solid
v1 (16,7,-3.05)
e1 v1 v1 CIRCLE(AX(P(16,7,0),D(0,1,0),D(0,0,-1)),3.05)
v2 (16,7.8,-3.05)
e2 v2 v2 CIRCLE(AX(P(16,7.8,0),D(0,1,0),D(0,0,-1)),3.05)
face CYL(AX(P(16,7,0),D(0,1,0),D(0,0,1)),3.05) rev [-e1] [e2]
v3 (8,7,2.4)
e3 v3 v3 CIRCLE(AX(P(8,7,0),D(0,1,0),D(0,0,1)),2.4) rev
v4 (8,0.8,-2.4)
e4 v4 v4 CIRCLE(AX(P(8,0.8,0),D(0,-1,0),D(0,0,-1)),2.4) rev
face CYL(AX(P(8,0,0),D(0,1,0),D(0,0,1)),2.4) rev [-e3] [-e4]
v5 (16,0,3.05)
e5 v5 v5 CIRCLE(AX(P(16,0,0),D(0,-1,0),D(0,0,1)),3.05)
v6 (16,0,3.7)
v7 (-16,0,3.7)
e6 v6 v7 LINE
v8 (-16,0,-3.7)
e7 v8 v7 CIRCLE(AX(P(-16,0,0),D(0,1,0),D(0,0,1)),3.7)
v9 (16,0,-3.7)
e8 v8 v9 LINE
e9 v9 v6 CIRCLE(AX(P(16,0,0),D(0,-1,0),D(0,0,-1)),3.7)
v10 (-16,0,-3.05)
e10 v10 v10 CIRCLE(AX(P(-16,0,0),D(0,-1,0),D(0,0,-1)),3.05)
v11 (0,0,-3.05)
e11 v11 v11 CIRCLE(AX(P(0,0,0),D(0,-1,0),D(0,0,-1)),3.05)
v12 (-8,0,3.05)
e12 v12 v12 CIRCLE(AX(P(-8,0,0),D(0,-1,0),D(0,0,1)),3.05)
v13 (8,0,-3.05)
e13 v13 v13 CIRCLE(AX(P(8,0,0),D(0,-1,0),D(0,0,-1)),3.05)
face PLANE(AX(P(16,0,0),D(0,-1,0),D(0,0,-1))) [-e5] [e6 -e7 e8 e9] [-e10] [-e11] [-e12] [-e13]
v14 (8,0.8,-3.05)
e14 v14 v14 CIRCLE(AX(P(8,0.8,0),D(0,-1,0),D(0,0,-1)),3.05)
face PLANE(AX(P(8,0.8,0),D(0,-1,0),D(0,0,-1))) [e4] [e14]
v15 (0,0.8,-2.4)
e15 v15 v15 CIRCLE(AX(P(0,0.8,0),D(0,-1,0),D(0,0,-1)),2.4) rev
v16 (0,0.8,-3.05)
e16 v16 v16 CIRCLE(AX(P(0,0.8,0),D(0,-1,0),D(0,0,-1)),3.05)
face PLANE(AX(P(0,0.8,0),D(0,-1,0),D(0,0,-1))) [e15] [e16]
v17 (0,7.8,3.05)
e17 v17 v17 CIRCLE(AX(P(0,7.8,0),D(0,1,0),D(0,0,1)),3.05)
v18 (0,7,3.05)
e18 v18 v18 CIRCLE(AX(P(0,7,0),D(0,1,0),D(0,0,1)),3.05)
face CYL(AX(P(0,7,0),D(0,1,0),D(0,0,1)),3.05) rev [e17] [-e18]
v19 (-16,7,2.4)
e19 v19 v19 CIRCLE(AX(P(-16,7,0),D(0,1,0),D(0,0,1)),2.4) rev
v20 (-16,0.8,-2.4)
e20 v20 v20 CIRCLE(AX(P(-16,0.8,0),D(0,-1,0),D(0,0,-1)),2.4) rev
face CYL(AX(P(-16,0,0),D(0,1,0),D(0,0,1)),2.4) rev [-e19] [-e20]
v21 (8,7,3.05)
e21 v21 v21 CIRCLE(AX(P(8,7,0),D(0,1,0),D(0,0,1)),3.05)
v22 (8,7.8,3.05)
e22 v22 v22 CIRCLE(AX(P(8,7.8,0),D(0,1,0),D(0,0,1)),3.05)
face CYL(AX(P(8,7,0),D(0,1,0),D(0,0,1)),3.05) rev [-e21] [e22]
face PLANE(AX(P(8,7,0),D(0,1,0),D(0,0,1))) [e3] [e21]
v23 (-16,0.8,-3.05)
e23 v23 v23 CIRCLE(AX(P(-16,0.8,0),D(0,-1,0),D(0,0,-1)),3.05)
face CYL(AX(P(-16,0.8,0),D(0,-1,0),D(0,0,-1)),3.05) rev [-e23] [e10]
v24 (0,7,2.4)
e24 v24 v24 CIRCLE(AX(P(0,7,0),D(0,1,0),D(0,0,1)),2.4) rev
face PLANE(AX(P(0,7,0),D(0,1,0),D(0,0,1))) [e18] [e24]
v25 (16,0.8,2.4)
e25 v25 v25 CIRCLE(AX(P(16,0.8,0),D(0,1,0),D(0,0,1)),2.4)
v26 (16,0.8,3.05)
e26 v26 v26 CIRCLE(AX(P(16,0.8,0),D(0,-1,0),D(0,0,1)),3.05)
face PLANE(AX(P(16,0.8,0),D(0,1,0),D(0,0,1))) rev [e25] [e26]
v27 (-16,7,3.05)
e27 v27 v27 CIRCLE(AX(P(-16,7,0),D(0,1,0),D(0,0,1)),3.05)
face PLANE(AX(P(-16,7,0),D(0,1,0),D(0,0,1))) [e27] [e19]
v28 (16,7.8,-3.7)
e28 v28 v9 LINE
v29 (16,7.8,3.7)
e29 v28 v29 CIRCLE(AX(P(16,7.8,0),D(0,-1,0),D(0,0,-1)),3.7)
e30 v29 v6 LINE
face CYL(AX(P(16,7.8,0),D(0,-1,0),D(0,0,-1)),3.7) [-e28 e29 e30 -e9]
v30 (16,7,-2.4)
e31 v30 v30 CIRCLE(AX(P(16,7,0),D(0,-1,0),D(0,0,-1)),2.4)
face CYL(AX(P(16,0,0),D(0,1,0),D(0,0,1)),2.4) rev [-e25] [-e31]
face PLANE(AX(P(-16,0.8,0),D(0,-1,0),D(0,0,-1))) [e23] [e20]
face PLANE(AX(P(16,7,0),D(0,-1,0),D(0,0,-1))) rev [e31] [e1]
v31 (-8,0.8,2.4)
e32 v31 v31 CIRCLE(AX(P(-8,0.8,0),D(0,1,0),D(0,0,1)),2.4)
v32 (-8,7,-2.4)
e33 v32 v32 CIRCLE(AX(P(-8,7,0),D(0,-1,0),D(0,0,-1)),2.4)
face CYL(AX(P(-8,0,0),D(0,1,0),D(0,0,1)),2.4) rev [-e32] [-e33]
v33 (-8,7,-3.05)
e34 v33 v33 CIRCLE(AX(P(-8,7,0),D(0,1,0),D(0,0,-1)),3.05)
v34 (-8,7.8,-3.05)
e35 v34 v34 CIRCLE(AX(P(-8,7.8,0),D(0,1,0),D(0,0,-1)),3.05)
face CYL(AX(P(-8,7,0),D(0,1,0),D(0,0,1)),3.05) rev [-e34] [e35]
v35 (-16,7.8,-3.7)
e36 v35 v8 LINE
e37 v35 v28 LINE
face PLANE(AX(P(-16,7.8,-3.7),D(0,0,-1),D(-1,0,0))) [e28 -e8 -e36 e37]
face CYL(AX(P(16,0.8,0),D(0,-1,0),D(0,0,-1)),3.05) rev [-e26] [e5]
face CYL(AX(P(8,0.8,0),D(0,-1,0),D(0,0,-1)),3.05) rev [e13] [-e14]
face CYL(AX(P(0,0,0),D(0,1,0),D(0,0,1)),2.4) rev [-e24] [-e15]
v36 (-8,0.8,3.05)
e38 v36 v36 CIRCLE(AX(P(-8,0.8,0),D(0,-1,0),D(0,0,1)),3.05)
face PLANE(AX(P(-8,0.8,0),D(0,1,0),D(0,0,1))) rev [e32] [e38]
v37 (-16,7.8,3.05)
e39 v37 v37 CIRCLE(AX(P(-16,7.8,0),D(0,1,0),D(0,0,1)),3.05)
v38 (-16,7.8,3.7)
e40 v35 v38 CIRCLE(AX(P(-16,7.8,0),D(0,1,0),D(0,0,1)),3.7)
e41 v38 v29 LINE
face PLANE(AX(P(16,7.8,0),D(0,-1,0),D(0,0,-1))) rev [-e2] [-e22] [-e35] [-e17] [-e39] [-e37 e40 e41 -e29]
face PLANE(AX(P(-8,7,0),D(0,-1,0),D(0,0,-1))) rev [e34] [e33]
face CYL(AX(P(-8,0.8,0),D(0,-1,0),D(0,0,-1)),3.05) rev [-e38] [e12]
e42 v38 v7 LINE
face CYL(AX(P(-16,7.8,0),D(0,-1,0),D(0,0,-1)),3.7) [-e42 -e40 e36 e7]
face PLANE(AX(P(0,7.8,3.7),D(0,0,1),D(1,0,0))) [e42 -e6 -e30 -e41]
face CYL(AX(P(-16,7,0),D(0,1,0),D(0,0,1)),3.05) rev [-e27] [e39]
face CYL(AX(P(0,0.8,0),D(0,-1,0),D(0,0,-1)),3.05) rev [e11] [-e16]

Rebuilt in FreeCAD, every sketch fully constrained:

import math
import FreeCAD as App
import Part
import Sketcher
Q = App.Units.Quantity

doc = App.newDocument("Part")
body = doc.addObject("PartDesign::Body", "Body")

# Sketch on XZ plane
sketch1 = body.newObject("Sketcher::SketchObject", "Sketch")
sketch1.AttachmentSupport = (doc.getObject("XZ_Plane"), [""])
sketch1.MapMode = "FlatFace"
sketch1.addGeometry(Part.LineSegment(App.Vector(16, -3.7, 0), App.Vector(-16, -3.7, 0)), False)
sketch1.addGeometry(Part.ArcOfCircle(Part.Circle(App.Vector(-16, 0, 0), App.Vector(0, 0, 1), 3.7), math.radians(90), math.radians(270)), False)
sketch1.addGeometry(Part.LineSegment(App.Vector(-16, 3.7, 0), App.Vector(16, 3.7, 0)), False)
sketch1.addGeometry(Part.ArcOfCircle(Part.Circle(App.Vector(16, 0, 0), App.Vector(0, 0, 1), 3.7), math.radians(-90), math.radians(90)), False)
sketch1.addConstraint(Sketcher.Constraint("Tangent", 0, 2, 1, 2))
sketch1.addConstraint(Sketcher.Constraint("Tangent", 1, 1, 2, 1))
sketch1.addConstraint(Sketcher.Constraint("Tangent", 2, 2, 3, 2))
sketch1.addConstraint(Sketcher.Constraint("Tangent", 3, 1, 0, 1))
sketch1.addConstraint(Sketcher.Constraint("Horizontal", 0))
sketch1.addConstraint(Sketcher.Constraint("Horizontal", 2))
sketch1.addConstraint(Sketcher.Constraint("Symmetric", 1, 3, 3, 3, -1, 1))
sketch1.addConstraint(Sketcher.Constraint("Radius", 1, Q("3.7 mm")))
sketch1.addConstraint(Sketcher.Constraint("DistanceX", 0, 2, 0, 1, Q("32 mm")))
pad1 = body.newObject("PartDesign::Pad", "Pad")
pad1.Profile = sketch1
pad1.Length = 7.8
pad1.Reversed = True

# Sketch on XZ plane
sketch2 = body.newObject("Sketcher::SketchObject", "Sketch001")
sketch2.AttachmentSupport = (doc.getObject("XZ_Plane"), [""])
sketch2.MapMode = "FlatFace"
sketch2.AttachmentOffset = App.Placement(App.Vector(0, 0, -7.8), App.Rotation())
sketch2.addGeometry(Part.Circle(App.Vector(0, 0, 0), App.Vector(0, 0, 1), 2.4), False)
sketch2.addGeometry(Part.Circle(App.Vector(8, 0, 0), App.Vector(0, 0, 1), 2.4), False)
sketch2.addGeometry(Part.Circle(App.Vector(16, 0, 0), App.Vector(0, 0, 1), 2.4), False)
sketch2.addGeometry(Part.Circle(App.Vector(-16, 0, 0), App.Vector(0, 0, 1), 2.4), False)
sketch2.addGeometry(Part.Circle(App.Vector(-8, 0, 0), App.Vector(0, 0, 1), 2.4), False)
sketch2.addConstraint(Sketcher.Constraint("Coincident", 0, 3, -1, 1))
sketch2.addConstraint(Sketcher.Constraint("Equal", 0, 1))
sketch2.addConstraint(Sketcher.Constraint("Equal", 1, 2))
sketch2.addConstraint(Sketcher.Constraint("Equal", 2, 3))
sketch2.addConstraint(Sketcher.Constraint("Equal", 3, 4))
sketch2.addConstraint(Sketcher.Constraint("Symmetric", 2, 3, 3, 3, -1, 1))
sketch2.addConstraint(Sketcher.Constraint("Symmetric", 1, 3, 4, 3, -1, 1))
sketch2.addConstraint(Sketcher.Constraint("PointOnObject", 1, 3, -1))
sketch2.addConstraint(Sketcher.Constraint("PointOnObject", 2, 3, -1))
sketch2.addConstraint(Sketcher.Constraint("Diameter", 0, Q("4.8 mm")))
sketch2.addConstraint(Sketcher.Constraint("DistanceX", -1, 1, 1, 3, Q("8 mm")))
sketch2.addConstraint(Sketcher.Constraint("DistanceX", -1, 1, 2, 3, Q("16 mm")))
pocket1 = body.newObject("PartDesign::Pocket", "Pocket")
pocket1.Profile = sketch2
pocket1.Length = 7.8
pocket1.Reversed = True

# Sketch on XZ plane
sketch3 = body.newObject("Sketcher::SketchObject", "Sketch002")
sketch3.AttachmentSupport = (doc.getObject("XZ_Plane"), [""])
sketch3.MapMode = "FlatFace"
sketch3.AttachmentOffset = App.Placement(App.Vector(0, 0, -7.8), App.Rotation())
sketch3.addGeometry(Part.Circle(App.Vector(0, 0, 0), App.Vector(0, 0, 1), 3), False)
sketch3.addGeometry(Part.Circle(App.Vector(8, 0, 0), App.Vector(0, 0, 1), 3), False)
sketch3.addGeometry(Part.Circle(App.Vector(16, 0, 0), App.Vector(0, 0, 1), 3), False)
sketch3.addGeometry(Part.Circle(App.Vector(-16, 0, 0), App.Vector(0, 0, 1), 3), False)
sketch3.addGeometry(Part.Circle(App.Vector(-8, 0, 0), App.Vector(0, 0, 1), 3), False)
sketch3.addConstraint(Sketcher.Constraint("Coincident", 0, 3, -1, 1))
sketch3.addConstraint(Sketcher.Constraint("Equal", 0, 1))
sketch3.addConstraint(Sketcher.Constraint("Equal", 1, 2))
sketch3.addConstraint(Sketcher.Constraint("Equal", 2, 3))
sketch3.addConstraint(Sketcher.Constraint("Equal", 3, 4))
sketch3.addConstraint(Sketcher.Constraint("Symmetric", 2, 3, 3, 3, -1, 1))
sketch3.addConstraint(Sketcher.Constraint("Symmetric", 1, 3, 4, 3, -1, 1))
sketch3.addConstraint(Sketcher.Constraint("PointOnObject", 1, 3, -1))
sketch3.addConstraint(Sketcher.Constraint("PointOnObject", 2, 3, -1))
sketch3.addConstraint(Sketcher.Constraint("Diameter", 0, Q("6.1 mm")))
sketch3.addConstraint(Sketcher.Constraint("DistanceX", -1, 1, 1, 3, Q("8 mm")))
sketch3.addConstraint(Sketcher.Constraint("DistanceX", -1, 1, 2, 3, Q("16 mm")))
pocket2 = body.newObject("PartDesign::Pocket", "Pocket001")
pocket2.Profile = sketch3
pocket2.Length = 0.8
pocket2.Reversed = True

# Sketch on XZ plane
sketch4 = body.newObject("Sketcher::SketchObject", "Sketch003")
sketch4.AttachmentSupport = (doc.getObject("XZ_Plane"), [""])
sketch4.MapMode = "FlatFace"
sketch4.addGeometry(Part.Circle(App.Vector(0, 0, 0), App.Vector(0, 0, 1), 3), False)
sketch4.addGeometry(Part.Circle(App.Vector(8, 0, 0), App.Vector(0, 0, 1), 3), False)
sketch4.addGeometry(Part.Circle(App.Vector(16, 0, 0), App.Vector(0, 0, 1), 3), False)
sketch4.addGeometry(Part.Circle(App.Vector(-16, 0, 0), App.Vector(0, 0, 1), 3), False)
sketch4.addGeometry(Part.Circle(App.Vector(-8, 0, 0), App.Vector(0, 0, 1), 3), False)
sketch4.addConstraint(Sketcher.Constraint("Coincident", 0, 3, -1, 1))
sketch4.addConstraint(Sketcher.Constraint("Equal", 0, 1))
sketch4.addConstraint(Sketcher.Constraint("Equal", 1, 2))
sketch4.addConstraint(Sketcher.Constraint("Equal", 2, 3))
sketch4.addConstraint(Sketcher.Constraint("Equal", 3, 4))
sketch4.addConstraint(Sketcher.Constraint("Symmetric", 2, 3, 3, 3, -1, 1))
sketch4.addConstraint(Sketcher.Constraint("Symmetric", 1, 3, 4, 3, -1, 1))
sketch4.addConstraint(Sketcher.Constraint("PointOnObject", 1, 3, -1))
sketch4.addConstraint(Sketcher.Constraint("PointOnObject", 2, 3, -1))
sketch4.addConstraint(Sketcher.Constraint("Diameter", 0, Q("6.1 mm")))
sketch4.addConstraint(Sketcher.Constraint("DistanceX", -1, 1, 1, 3, Q("8 mm")))
sketch4.addConstraint(Sketcher.Constraint("DistanceX", -1, 1, 2, 3, Q("16 mm")))
pocket3 = body.newObject("PartDesign::Pocket", "Pocket002")
pocket3.Profile = sketch4
pocket3.Length = 0.8

doc.recompute()
